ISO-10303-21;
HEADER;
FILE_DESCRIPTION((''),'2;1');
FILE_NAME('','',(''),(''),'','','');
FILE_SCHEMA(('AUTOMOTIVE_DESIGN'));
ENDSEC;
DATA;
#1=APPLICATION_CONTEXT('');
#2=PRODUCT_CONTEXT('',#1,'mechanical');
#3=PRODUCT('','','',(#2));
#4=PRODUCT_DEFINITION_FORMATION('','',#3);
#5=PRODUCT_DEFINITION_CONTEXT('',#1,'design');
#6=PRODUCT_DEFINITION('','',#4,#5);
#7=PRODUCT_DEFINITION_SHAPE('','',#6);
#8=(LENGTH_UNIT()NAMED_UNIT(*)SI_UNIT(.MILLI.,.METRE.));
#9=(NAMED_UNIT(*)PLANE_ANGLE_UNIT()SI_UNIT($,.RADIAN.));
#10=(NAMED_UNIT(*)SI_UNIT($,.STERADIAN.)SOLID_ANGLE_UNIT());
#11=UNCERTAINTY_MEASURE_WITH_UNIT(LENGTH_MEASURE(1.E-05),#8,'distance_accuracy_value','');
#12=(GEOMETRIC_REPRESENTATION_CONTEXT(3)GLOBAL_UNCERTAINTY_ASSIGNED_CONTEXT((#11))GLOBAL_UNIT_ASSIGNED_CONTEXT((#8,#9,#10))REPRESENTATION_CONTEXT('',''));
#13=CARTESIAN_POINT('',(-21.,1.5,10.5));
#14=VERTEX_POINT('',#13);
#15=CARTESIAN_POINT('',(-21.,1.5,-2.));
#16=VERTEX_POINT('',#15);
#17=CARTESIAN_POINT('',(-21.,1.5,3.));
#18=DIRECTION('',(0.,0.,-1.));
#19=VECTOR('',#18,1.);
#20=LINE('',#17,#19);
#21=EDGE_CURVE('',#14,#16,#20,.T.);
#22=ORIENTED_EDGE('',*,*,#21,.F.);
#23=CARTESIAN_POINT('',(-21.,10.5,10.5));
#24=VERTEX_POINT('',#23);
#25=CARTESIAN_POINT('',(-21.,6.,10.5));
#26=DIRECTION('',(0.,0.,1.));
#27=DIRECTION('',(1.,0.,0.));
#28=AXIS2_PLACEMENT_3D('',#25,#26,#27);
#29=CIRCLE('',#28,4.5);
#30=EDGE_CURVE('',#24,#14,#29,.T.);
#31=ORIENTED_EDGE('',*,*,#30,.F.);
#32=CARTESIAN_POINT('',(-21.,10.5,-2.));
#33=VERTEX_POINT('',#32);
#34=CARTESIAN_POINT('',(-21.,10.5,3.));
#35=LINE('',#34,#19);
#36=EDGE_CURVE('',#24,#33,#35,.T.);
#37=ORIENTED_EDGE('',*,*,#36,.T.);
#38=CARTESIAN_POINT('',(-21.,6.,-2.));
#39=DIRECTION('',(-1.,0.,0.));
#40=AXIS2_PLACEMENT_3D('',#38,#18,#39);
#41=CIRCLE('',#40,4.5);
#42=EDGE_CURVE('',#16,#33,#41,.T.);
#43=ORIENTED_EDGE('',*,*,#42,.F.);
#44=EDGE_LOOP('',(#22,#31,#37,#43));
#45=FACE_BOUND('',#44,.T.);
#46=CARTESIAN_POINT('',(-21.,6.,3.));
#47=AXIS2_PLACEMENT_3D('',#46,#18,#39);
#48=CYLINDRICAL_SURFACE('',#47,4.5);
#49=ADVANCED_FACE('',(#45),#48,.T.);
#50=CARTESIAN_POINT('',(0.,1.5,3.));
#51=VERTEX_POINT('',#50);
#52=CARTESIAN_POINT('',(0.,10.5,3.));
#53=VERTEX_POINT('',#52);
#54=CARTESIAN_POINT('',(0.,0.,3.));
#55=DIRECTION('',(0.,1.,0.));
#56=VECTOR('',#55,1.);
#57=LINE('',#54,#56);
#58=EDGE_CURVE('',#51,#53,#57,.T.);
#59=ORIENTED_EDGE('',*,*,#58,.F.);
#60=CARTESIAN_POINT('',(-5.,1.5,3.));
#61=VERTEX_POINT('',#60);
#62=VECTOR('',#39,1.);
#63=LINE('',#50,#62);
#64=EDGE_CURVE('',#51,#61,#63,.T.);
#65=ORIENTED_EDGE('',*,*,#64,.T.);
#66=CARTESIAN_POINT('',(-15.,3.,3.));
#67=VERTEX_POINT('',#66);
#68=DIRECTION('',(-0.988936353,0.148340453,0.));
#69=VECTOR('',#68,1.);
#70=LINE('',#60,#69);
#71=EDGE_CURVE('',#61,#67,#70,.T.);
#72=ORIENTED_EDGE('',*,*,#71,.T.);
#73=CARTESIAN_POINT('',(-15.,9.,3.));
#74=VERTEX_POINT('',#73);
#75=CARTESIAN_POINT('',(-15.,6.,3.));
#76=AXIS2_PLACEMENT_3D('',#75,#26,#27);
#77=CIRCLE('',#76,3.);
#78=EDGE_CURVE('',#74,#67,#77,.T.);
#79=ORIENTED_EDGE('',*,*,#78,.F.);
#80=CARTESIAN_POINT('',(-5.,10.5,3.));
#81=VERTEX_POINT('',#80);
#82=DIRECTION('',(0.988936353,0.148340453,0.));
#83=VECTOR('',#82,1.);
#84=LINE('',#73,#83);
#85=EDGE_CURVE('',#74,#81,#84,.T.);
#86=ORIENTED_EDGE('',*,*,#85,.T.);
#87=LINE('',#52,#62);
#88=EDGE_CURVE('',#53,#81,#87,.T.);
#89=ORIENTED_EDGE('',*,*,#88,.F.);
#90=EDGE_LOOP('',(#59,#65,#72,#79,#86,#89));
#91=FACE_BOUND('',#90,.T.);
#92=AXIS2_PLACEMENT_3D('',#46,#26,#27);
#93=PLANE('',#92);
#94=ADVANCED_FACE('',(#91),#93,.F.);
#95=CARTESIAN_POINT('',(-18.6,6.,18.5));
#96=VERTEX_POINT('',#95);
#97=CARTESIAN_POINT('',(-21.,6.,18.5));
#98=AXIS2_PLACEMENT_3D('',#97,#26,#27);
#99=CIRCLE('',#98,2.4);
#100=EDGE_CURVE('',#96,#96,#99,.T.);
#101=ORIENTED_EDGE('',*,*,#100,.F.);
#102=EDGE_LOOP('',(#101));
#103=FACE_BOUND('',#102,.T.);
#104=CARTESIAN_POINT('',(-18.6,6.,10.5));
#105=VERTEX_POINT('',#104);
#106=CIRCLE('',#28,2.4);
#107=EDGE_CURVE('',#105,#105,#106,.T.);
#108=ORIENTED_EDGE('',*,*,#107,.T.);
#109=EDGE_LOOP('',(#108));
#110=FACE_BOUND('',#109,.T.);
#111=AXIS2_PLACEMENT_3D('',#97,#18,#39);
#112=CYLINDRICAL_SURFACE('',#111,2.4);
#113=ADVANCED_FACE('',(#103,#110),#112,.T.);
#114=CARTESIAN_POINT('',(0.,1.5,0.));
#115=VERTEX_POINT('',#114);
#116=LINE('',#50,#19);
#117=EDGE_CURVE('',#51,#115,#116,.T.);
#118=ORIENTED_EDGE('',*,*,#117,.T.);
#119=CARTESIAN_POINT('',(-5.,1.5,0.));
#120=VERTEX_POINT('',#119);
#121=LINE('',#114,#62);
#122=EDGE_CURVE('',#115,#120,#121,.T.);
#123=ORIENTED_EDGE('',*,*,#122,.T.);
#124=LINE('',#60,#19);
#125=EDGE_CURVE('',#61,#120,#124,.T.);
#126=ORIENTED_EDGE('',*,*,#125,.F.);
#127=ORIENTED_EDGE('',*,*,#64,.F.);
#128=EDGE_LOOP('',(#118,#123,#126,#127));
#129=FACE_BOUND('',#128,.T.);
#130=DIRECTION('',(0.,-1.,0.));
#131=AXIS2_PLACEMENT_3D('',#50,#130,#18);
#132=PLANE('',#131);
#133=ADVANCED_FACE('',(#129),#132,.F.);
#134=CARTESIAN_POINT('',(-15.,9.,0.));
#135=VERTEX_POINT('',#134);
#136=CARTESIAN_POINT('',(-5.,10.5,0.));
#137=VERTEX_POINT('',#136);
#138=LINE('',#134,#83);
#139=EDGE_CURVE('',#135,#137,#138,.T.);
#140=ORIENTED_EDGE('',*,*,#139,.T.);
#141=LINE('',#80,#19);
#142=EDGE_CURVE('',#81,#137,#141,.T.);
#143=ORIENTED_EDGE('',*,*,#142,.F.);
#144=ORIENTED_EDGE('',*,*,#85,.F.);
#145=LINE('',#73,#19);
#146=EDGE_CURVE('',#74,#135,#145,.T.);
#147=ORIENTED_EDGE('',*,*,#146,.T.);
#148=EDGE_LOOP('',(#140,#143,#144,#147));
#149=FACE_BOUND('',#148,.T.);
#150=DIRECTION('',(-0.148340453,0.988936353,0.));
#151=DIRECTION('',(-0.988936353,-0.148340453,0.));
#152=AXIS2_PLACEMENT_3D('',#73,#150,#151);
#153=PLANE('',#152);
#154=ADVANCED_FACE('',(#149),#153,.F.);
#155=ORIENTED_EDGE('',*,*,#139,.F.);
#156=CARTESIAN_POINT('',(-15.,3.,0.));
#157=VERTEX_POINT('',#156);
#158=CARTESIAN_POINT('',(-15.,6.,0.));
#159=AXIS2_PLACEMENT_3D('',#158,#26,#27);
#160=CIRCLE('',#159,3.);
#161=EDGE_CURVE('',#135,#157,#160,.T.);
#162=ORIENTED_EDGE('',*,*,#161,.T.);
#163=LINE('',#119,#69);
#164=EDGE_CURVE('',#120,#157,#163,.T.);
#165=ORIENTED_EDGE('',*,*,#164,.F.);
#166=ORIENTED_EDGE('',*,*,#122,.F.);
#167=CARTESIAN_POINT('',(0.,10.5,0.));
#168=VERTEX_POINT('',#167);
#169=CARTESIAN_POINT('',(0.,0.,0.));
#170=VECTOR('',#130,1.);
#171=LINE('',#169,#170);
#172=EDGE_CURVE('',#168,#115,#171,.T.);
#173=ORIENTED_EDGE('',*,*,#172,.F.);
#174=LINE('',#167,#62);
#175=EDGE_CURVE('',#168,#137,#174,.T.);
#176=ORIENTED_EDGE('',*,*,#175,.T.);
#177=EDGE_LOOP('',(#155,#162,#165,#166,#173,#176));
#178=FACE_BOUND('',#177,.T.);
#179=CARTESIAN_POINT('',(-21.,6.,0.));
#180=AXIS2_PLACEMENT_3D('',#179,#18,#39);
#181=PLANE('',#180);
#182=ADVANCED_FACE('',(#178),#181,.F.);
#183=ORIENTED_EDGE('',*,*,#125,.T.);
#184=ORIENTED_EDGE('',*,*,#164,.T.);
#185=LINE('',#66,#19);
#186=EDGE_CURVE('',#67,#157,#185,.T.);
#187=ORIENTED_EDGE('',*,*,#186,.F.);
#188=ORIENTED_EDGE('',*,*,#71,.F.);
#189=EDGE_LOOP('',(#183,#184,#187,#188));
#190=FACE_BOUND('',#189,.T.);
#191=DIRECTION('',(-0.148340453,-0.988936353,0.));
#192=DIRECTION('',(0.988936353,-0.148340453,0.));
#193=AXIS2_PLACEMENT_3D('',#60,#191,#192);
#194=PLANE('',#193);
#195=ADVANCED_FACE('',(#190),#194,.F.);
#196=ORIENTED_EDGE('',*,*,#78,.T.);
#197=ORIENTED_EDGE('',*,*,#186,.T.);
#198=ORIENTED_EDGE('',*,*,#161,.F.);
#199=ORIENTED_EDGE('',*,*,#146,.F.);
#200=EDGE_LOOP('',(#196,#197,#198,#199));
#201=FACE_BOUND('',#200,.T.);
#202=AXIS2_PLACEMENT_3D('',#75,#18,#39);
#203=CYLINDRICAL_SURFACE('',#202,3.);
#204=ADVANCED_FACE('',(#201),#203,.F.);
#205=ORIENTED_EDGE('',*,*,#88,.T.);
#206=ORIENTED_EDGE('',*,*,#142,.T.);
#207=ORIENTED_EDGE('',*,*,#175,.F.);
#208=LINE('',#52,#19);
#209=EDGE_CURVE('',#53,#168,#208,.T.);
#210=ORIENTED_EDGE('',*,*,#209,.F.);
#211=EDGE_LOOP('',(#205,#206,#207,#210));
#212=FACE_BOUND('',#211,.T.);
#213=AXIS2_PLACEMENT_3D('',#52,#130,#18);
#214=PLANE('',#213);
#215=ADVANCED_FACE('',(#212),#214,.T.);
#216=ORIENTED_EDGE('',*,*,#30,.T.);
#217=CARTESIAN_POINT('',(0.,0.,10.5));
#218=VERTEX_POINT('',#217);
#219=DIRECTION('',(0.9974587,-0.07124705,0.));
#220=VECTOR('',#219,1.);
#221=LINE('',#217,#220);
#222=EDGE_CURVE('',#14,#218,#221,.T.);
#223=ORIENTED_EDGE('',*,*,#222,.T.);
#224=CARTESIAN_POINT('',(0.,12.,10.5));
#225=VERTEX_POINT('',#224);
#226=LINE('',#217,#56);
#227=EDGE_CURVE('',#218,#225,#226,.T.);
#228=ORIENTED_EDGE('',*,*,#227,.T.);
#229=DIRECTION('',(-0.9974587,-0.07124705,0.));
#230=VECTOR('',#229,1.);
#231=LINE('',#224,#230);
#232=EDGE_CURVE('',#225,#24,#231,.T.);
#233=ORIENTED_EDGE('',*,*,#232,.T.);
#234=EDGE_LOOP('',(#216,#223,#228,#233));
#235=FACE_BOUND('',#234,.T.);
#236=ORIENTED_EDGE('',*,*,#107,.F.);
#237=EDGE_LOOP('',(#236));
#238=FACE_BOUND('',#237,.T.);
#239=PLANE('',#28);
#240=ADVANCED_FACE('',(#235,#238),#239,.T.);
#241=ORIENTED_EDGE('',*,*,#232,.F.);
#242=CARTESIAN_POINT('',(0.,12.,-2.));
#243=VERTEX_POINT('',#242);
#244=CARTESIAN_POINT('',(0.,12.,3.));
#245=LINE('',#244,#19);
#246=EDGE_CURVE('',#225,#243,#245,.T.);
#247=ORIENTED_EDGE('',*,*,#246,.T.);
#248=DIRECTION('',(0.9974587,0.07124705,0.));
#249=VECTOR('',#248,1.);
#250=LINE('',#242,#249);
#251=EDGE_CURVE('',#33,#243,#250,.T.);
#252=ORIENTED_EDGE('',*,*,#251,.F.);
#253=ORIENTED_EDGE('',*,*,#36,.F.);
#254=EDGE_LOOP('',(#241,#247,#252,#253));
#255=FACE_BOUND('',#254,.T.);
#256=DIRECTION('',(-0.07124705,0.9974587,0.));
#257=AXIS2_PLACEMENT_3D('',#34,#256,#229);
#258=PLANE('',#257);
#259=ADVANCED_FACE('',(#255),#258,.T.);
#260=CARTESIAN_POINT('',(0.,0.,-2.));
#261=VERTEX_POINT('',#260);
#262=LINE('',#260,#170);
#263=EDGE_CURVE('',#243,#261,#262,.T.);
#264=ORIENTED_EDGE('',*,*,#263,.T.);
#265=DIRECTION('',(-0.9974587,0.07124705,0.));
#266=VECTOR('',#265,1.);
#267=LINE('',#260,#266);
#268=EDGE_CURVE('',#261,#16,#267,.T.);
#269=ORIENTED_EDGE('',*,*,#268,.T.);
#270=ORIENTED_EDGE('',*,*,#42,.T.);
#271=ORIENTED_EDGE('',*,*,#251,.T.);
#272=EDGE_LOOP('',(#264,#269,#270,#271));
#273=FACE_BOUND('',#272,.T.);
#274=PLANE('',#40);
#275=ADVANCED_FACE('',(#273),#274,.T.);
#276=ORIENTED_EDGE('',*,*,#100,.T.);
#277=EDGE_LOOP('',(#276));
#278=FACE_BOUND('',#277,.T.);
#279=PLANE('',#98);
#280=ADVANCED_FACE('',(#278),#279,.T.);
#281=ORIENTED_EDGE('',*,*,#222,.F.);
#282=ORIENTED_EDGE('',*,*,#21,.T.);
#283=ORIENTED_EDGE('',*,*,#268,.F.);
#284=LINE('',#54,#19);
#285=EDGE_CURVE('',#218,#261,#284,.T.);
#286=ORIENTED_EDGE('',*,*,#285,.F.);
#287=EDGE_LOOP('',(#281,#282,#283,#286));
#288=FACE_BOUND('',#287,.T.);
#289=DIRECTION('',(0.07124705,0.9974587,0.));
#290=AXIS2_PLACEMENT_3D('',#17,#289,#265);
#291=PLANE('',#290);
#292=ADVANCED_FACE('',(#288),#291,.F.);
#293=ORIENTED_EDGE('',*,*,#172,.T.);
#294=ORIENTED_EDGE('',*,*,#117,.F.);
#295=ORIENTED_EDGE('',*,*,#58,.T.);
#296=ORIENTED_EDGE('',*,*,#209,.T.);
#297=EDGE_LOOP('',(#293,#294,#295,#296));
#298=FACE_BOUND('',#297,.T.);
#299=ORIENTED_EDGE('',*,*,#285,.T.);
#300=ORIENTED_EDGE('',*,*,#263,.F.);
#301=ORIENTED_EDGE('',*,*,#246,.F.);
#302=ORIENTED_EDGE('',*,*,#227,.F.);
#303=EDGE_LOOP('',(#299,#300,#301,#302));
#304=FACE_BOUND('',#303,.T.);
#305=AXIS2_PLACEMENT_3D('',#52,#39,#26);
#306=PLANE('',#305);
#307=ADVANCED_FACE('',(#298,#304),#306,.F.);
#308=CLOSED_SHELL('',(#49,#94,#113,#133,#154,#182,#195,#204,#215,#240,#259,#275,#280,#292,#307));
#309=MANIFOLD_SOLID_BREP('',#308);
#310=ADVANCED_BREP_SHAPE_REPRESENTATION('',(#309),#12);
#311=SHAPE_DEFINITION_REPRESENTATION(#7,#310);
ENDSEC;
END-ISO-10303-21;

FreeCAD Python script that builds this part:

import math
import FreeCAD as App
import Part
import Sketcher
from FreeCAD import Vector

doc = App.newDocument("Part")
params = doc.addObject("Spreadsheet::Sheet", "Params")
for row, (alias, value) in enumerate([
    ("sketch1_radius", "3 mm"),
    ("sketch1_radius2", "4.5 mm"),
    ("sketch1_width", "5 mm"),
    ("sketch1_height", "1.5 mm"),
    ("pad1_length", "3 mm"),
    ("sketch2_radius", "4.5 mm"),
    ("sketch2_height", "12 mm"),
    ("pad2_length", "7.5 mm"),
    ("sketch3_radius", "4.5 mm"),
    ("sketch3_height", "12 mm"),
    ("pad3_length", "2 mm"),
    ("sketch4_diameter", "4.8 mm"),
    ("pad4_length", "8 mm"),
], start=1):
    params.set(f"A{row}", alias)
    params.set(f"B{row}", "=" + value)
    params.setAlias(f"B{row}", alias)

body = doc.addObject("PartDesign::Body", "Body")

sketch1 = doc.addObject("Sketcher::SketchObject", "Sketch")
body.addObject(sketch1)
sketch1.AttachmentSupport = (doc.XY_Plane, [""])
sketch1.MapMode = "FlatFace"
sketch1.addGeometry(Part.LineSegment(Vector(0, 0, 0), Vector(0, 1.5, 0)), False)
sketch1.addGeometry(Part.LineSegment(Vector(0, 1.5, 0), Vector(-5, 1.5, 0)), False)
sketch1.addGeometry(Part.LineSegment(Vector(-5, 1.5, 0), Vector(-15, 3, 0)), False)
sketch1.addGeometry(Part.ArcOfCircle(Part.Circle(Vector(-15, 6, 0), Vector(0, 0, 1), 3), math.radians(90), math.radians(270)), False)
sketch1.addGeometry(Part.LineSegment(Vector(-15, 9, 0), Vector(-5, 10.5, 0)), False)
sketch1.addGeometry(Part.LineSegment(Vector(-5, 10.5, 0), Vector(0, 10.5, 0)), False)
sketch1.addGeometry(Part.LineSegment(Vector(0, 10.5, 0), Vector(0, 12, 0)), False)
sketch1.addGeometry(Part.LineSegment(Vector(0, 12, 0), Vector(-21, 10.5, 0)), False)
sketch1.addGeometry(Part.ArcOfCircle(Part.Circle(Vector(-21, 6, 0), Vector(0, 0, 1), 4.5), math.radians(90), math.radians(270)), False)
sketch1.addGeometry(Part.LineSegment(Vector(-21, 1.5, 0), Vector(0, 0, 0)), False)
sketch1.addConstraint(Sketcher.Constraint("Coincident", 0, 2, 1, 1))
sketch1.addConstraint(Sketcher.Constraint("Coincident", 1, 2, 2, 1))
sketch1.addConstraint(Sketcher.Constraint("Coincident", 2, 2, 3, 2))
sketch1.addConstraint(Sketcher.Constraint("Coincident", 3, 1, 4, 1))
sketch1.addConstraint(Sketcher.Constraint("Coincident", 4, 2, 5, 1))
sketch1.addConstraint(Sketcher.Constraint("Coincident", 5, 2, 6, 1))
sketch1.addConstraint(Sketcher.Constraint("Coincident", 6, 2, 7, 1))
sketch1.addConstraint(Sketcher.Constraint("Coincident", 7, 2, 8, 1))
sketch1.addConstraint(Sketcher.Constraint("Coincident", 8, 2, 9, 1))
sketch1.addConstraint(Sketcher.Constraint("Coincident", 9, 2, 0, 1))
sketch1.addConstraint(Sketcher.Constraint("Vertical", 0))
sketch1.addConstraint(Sketcher.Constraint("Horizontal", 1))
sketch1.addConstraint(Sketcher.Constraint("Horizontal", 5))
sketch1.addConstraint(Sketcher.Constraint("Vertical", 6))
sketch1.addConstraint(Sketcher.Constraint("Coincident", 9, 2, -1, 1))
sketch1.addConstraint(Sketcher.Constraint("PointOnObject", 5, 2, -2))
sketch1.addConstraint(Sketcher.Constraint("Horizontal", 3, 3, 8, 3))
sketch1.addConstraint(Sketcher.Constraint("Horizontal", 5, 2, 7, 2))
sketch1.addConstraint(Sketcher.Constraint("Horizontal", 1, 2, 8, 2))
sketch1.addConstraint(Sketcher.Constraint("Vertical", 3, 3, 2, 2))
sketch1.addConstraint(Sketcher.Constraint("Vertical", 2, 2, 3, 1))
sketch1.addConstraint(Sketcher.Constraint("Vertical", 1, 2, 4, 2))
sketch1.addConstraint(Sketcher.Constraint("Vertical", 8, 3, 7, 2))
sketch1.addConstraint(Sketcher.Constraint("Vertical", 7, 2, 8, 2))
sketch1.addConstraint(Sketcher.Constraint("Equal", 0, 6))
sketch1.addConstraint(Sketcher.Constraint("Radius", 3, 3.0))
sketch1.addConstraint(Sketcher.Constraint("Radius", 8, 4.5))
sketch1.addConstraint(Sketcher.Constraint("DistanceX", 1, 2, 1, 1, 5.0))
sketch1.addConstraint(Sketcher.Constraint("DistanceY", 0, 1, 0, 2, 1.5))
sketch1.addConstraint(Sketcher.Constraint("DistanceX", 3, 3, -1, 1, 15.0))
sketch1.addConstraint(Sketcher.Constraint("DistanceX", 8, 3, -1, 1, 21.0))
sketch1.setExpression("Constraints[25]", "Params.sketch1_radius")
sketch1.setExpression("Constraints[26]", "Params.sketch1_radius2")
sketch1.setExpression("Constraints[27]", "Params.sketch1_width")
sketch1.setExpression("Constraints[28]", "Params.sketch1_height")
pad1 = doc.addObject("PartDesign::Pad", "Pad")
body.addObject(pad1)
pad1.Profile = sketch1
pad1.setExpression("Length", "Params.pad1_length")

sketch2 = doc.addObject("Sketcher::SketchObject", "Sketch001")
body.addObject(sketch2)
sketch2.AttachmentSupport = (doc.XY_Plane, [""])
sketch2.MapMode = "FlatFace"
sketch2.AttachmentOffset = App.Placement(Vector(0, 0, 3), App.Rotation())
sketch2.addGeometry(Part.LineSegment(Vector(0, 0, 0), Vector(0, 12, 0)), False)
sketch2.addGeometry(Part.LineSegment(Vector(0, 12, 0), Vector(-21, 10.5, 0)), False)
sketch2.addGeometry(Part.ArcOfCircle(Part.Circle(Vector(-21, 6, 0), Vector(0, 0, 1), 4.5), math.radians(90), math.radians(270)), False)
sketch2.addGeometry(Part.LineSegment(Vector(-21, 1.5, 0), Vector(0, 0, 0)), False)
sketch2.addConstraint(Sketcher.Constraint("Coincident", 0, 2, 1, 1))
sketch2.addConstraint(Sketcher.Constraint("Coincident", 1, 2, 2, 1))
sketch2.addConstraint(Sketcher.Constraint("Coincident", 2, 2, 3, 1))
sketch2.addConstraint(Sketcher.Constraint("Coincident", 3, 2, 0, 1))
sketch2.addConstraint(Sketcher.Constraint("Vertical", 0))
sketch2.addConstraint(Sketcher.Constraint("Coincident", 3, 2, -1, 1))
sketch2.addConstraint(Sketcher.Constraint("Vertical", 2, 3, 1, 2))
sketch2.addConstraint(Sketcher.Constraint("Vertical", 1, 2, 2, 2))
sketch2.addConstraint(Sketcher.Constraint("Equal", 1, 3))
sketch2.addConstraint(Sketcher.Constraint("Radius", 2, 4.5))
sketch2.addConstraint(Sketcher.Constraint("DistanceY", 0, 1, 0, 2, 12.0))
sketch2.addConstraint(Sketcher.Constraint("DistanceX", 2, 3, -1, 1, 21.0))
sketch2.setExpression("Constraints[9]", "Params.sketch2_radius")
sketch2.setExpression("Constraints[10]", "Params.sketch2_height")
pad2 = doc.addObject("PartDesign::Pad", "Pad001")
body.addObject(pad2)
pad2.Profile = sketch2
pad2.setExpression("Length", "Params.pad2_length")

sketch3 = doc.addObject("Sketcher::SketchObject", "Sketch002")
body.addObject(sketch3)
sketch3.AttachmentSupport = (doc.XY_Plane, [""])
sketch3.MapMode = "FlatFace"
sketch3.AttachmentOffset = App.Placement(Vector(0, 0, -2), App.Rotation())
sketch3.addGeometry(Part.LineSegment(Vector(0, 12, 0), Vector(0, 0, 0)), False)
sketch3.addGeometry(Part.LineSegment(Vector(0, 0, 0), Vector(-21, 1.5, 0)), False)
sketch3.addGeometry(Part.ArcOfCircle(Part.Circle(Vector(-21, 6, 0), Vector(0, 0, 1), 4.5), math.radians(90), math.radians(270)), False)
sketch3.addGeometry(Part.LineSegment(Vector(-21, 10.5, 0), Vector(0, 12, 0)), False)
sketch3.addConstraint(Sketcher.Constraint("Coincident", 0, 2, 1, 1))
sketch3.addConstraint(Sketcher.Constraint("Coincident", 1, 2, 2, 2))
sketch3.addConstraint(Sketcher.Constraint("Coincident", 2, 1, 3, 1))
sketch3.addConstraint(Sketcher.Constraint("Coincident", 3, 2, 0, 1))
sketch3.addConstraint(Sketcher.Constraint("Vertical", 0))
sketch3.addConstraint(Sketcher.Constraint("Coincident", 0, 2, -1, 1))
sketch3.addConstraint(Sketcher.Constraint("Vertical", 2, 3, 1, 2))
sketch3.addConstraint(Sketcher.Constraint("Vertical", 1, 2, 2, 1))
sketch3.addConstraint(Sketcher.Constraint("Equal", 1, 3))
sketch3.addConstraint(Sketcher.Constraint("Radius", 2, 4.5))
sketch3.addConstraint(Sketcher.Constraint("DistanceY", 0, 2, 0, 1, 12.0))
sketch3.addConstraint(Sketcher.Constraint("DistanceX", 2, 3, -1, 1, 21.0))
sketch3.setExpression("Constraints[9]", "Params.sketch3_radius")
sketch3.setExpression("Constraints[10]", "Params.sketch3_height")
pad3 = doc.addObject("PartDesign::Pad", "Pad002")
body.addObject(pad3)
pad3.Profile = sketch3
pad3.setExpression("Length", "Params.pad3_length")

sketch4 = doc.addObject("Sketcher::SketchObject", "Sketch003")
body.addObject(sketch4)
sketch4.AttachmentSupport = (doc.XY_Plane, [""])
sketch4.MapMode = "FlatFace"
sketch4.AttachmentOffset = App.Placement(Vector(0, 0, 10.5), App.Rotation())
sketch4.addGeometry(Part.Circle(Vector(-21, 6, 0), Vector(0, 0, 1), 2.4), False)
sketch4.addConstraint(Sketcher.Constraint("Diameter", 0, 4.8))
sketch4.addConstraint(Sketcher.Constraint("DistanceX", 0, 3, -1, 1, 21.0))
sketch4.addConstraint(Sketcher.Constraint("DistanceY", -1, 1, 0, 3, 6.0))
sketch4.setExpression("Constraints[0]", "Params.sketch4_diameter")
pad4 = doc.addObject("PartDesign::Pad", "Pad003")
body.addObject(pad4)
pad4.Profile = sketch4
pad4.setExpression("Length", "Params.pad4_length")

doc.recompute()
